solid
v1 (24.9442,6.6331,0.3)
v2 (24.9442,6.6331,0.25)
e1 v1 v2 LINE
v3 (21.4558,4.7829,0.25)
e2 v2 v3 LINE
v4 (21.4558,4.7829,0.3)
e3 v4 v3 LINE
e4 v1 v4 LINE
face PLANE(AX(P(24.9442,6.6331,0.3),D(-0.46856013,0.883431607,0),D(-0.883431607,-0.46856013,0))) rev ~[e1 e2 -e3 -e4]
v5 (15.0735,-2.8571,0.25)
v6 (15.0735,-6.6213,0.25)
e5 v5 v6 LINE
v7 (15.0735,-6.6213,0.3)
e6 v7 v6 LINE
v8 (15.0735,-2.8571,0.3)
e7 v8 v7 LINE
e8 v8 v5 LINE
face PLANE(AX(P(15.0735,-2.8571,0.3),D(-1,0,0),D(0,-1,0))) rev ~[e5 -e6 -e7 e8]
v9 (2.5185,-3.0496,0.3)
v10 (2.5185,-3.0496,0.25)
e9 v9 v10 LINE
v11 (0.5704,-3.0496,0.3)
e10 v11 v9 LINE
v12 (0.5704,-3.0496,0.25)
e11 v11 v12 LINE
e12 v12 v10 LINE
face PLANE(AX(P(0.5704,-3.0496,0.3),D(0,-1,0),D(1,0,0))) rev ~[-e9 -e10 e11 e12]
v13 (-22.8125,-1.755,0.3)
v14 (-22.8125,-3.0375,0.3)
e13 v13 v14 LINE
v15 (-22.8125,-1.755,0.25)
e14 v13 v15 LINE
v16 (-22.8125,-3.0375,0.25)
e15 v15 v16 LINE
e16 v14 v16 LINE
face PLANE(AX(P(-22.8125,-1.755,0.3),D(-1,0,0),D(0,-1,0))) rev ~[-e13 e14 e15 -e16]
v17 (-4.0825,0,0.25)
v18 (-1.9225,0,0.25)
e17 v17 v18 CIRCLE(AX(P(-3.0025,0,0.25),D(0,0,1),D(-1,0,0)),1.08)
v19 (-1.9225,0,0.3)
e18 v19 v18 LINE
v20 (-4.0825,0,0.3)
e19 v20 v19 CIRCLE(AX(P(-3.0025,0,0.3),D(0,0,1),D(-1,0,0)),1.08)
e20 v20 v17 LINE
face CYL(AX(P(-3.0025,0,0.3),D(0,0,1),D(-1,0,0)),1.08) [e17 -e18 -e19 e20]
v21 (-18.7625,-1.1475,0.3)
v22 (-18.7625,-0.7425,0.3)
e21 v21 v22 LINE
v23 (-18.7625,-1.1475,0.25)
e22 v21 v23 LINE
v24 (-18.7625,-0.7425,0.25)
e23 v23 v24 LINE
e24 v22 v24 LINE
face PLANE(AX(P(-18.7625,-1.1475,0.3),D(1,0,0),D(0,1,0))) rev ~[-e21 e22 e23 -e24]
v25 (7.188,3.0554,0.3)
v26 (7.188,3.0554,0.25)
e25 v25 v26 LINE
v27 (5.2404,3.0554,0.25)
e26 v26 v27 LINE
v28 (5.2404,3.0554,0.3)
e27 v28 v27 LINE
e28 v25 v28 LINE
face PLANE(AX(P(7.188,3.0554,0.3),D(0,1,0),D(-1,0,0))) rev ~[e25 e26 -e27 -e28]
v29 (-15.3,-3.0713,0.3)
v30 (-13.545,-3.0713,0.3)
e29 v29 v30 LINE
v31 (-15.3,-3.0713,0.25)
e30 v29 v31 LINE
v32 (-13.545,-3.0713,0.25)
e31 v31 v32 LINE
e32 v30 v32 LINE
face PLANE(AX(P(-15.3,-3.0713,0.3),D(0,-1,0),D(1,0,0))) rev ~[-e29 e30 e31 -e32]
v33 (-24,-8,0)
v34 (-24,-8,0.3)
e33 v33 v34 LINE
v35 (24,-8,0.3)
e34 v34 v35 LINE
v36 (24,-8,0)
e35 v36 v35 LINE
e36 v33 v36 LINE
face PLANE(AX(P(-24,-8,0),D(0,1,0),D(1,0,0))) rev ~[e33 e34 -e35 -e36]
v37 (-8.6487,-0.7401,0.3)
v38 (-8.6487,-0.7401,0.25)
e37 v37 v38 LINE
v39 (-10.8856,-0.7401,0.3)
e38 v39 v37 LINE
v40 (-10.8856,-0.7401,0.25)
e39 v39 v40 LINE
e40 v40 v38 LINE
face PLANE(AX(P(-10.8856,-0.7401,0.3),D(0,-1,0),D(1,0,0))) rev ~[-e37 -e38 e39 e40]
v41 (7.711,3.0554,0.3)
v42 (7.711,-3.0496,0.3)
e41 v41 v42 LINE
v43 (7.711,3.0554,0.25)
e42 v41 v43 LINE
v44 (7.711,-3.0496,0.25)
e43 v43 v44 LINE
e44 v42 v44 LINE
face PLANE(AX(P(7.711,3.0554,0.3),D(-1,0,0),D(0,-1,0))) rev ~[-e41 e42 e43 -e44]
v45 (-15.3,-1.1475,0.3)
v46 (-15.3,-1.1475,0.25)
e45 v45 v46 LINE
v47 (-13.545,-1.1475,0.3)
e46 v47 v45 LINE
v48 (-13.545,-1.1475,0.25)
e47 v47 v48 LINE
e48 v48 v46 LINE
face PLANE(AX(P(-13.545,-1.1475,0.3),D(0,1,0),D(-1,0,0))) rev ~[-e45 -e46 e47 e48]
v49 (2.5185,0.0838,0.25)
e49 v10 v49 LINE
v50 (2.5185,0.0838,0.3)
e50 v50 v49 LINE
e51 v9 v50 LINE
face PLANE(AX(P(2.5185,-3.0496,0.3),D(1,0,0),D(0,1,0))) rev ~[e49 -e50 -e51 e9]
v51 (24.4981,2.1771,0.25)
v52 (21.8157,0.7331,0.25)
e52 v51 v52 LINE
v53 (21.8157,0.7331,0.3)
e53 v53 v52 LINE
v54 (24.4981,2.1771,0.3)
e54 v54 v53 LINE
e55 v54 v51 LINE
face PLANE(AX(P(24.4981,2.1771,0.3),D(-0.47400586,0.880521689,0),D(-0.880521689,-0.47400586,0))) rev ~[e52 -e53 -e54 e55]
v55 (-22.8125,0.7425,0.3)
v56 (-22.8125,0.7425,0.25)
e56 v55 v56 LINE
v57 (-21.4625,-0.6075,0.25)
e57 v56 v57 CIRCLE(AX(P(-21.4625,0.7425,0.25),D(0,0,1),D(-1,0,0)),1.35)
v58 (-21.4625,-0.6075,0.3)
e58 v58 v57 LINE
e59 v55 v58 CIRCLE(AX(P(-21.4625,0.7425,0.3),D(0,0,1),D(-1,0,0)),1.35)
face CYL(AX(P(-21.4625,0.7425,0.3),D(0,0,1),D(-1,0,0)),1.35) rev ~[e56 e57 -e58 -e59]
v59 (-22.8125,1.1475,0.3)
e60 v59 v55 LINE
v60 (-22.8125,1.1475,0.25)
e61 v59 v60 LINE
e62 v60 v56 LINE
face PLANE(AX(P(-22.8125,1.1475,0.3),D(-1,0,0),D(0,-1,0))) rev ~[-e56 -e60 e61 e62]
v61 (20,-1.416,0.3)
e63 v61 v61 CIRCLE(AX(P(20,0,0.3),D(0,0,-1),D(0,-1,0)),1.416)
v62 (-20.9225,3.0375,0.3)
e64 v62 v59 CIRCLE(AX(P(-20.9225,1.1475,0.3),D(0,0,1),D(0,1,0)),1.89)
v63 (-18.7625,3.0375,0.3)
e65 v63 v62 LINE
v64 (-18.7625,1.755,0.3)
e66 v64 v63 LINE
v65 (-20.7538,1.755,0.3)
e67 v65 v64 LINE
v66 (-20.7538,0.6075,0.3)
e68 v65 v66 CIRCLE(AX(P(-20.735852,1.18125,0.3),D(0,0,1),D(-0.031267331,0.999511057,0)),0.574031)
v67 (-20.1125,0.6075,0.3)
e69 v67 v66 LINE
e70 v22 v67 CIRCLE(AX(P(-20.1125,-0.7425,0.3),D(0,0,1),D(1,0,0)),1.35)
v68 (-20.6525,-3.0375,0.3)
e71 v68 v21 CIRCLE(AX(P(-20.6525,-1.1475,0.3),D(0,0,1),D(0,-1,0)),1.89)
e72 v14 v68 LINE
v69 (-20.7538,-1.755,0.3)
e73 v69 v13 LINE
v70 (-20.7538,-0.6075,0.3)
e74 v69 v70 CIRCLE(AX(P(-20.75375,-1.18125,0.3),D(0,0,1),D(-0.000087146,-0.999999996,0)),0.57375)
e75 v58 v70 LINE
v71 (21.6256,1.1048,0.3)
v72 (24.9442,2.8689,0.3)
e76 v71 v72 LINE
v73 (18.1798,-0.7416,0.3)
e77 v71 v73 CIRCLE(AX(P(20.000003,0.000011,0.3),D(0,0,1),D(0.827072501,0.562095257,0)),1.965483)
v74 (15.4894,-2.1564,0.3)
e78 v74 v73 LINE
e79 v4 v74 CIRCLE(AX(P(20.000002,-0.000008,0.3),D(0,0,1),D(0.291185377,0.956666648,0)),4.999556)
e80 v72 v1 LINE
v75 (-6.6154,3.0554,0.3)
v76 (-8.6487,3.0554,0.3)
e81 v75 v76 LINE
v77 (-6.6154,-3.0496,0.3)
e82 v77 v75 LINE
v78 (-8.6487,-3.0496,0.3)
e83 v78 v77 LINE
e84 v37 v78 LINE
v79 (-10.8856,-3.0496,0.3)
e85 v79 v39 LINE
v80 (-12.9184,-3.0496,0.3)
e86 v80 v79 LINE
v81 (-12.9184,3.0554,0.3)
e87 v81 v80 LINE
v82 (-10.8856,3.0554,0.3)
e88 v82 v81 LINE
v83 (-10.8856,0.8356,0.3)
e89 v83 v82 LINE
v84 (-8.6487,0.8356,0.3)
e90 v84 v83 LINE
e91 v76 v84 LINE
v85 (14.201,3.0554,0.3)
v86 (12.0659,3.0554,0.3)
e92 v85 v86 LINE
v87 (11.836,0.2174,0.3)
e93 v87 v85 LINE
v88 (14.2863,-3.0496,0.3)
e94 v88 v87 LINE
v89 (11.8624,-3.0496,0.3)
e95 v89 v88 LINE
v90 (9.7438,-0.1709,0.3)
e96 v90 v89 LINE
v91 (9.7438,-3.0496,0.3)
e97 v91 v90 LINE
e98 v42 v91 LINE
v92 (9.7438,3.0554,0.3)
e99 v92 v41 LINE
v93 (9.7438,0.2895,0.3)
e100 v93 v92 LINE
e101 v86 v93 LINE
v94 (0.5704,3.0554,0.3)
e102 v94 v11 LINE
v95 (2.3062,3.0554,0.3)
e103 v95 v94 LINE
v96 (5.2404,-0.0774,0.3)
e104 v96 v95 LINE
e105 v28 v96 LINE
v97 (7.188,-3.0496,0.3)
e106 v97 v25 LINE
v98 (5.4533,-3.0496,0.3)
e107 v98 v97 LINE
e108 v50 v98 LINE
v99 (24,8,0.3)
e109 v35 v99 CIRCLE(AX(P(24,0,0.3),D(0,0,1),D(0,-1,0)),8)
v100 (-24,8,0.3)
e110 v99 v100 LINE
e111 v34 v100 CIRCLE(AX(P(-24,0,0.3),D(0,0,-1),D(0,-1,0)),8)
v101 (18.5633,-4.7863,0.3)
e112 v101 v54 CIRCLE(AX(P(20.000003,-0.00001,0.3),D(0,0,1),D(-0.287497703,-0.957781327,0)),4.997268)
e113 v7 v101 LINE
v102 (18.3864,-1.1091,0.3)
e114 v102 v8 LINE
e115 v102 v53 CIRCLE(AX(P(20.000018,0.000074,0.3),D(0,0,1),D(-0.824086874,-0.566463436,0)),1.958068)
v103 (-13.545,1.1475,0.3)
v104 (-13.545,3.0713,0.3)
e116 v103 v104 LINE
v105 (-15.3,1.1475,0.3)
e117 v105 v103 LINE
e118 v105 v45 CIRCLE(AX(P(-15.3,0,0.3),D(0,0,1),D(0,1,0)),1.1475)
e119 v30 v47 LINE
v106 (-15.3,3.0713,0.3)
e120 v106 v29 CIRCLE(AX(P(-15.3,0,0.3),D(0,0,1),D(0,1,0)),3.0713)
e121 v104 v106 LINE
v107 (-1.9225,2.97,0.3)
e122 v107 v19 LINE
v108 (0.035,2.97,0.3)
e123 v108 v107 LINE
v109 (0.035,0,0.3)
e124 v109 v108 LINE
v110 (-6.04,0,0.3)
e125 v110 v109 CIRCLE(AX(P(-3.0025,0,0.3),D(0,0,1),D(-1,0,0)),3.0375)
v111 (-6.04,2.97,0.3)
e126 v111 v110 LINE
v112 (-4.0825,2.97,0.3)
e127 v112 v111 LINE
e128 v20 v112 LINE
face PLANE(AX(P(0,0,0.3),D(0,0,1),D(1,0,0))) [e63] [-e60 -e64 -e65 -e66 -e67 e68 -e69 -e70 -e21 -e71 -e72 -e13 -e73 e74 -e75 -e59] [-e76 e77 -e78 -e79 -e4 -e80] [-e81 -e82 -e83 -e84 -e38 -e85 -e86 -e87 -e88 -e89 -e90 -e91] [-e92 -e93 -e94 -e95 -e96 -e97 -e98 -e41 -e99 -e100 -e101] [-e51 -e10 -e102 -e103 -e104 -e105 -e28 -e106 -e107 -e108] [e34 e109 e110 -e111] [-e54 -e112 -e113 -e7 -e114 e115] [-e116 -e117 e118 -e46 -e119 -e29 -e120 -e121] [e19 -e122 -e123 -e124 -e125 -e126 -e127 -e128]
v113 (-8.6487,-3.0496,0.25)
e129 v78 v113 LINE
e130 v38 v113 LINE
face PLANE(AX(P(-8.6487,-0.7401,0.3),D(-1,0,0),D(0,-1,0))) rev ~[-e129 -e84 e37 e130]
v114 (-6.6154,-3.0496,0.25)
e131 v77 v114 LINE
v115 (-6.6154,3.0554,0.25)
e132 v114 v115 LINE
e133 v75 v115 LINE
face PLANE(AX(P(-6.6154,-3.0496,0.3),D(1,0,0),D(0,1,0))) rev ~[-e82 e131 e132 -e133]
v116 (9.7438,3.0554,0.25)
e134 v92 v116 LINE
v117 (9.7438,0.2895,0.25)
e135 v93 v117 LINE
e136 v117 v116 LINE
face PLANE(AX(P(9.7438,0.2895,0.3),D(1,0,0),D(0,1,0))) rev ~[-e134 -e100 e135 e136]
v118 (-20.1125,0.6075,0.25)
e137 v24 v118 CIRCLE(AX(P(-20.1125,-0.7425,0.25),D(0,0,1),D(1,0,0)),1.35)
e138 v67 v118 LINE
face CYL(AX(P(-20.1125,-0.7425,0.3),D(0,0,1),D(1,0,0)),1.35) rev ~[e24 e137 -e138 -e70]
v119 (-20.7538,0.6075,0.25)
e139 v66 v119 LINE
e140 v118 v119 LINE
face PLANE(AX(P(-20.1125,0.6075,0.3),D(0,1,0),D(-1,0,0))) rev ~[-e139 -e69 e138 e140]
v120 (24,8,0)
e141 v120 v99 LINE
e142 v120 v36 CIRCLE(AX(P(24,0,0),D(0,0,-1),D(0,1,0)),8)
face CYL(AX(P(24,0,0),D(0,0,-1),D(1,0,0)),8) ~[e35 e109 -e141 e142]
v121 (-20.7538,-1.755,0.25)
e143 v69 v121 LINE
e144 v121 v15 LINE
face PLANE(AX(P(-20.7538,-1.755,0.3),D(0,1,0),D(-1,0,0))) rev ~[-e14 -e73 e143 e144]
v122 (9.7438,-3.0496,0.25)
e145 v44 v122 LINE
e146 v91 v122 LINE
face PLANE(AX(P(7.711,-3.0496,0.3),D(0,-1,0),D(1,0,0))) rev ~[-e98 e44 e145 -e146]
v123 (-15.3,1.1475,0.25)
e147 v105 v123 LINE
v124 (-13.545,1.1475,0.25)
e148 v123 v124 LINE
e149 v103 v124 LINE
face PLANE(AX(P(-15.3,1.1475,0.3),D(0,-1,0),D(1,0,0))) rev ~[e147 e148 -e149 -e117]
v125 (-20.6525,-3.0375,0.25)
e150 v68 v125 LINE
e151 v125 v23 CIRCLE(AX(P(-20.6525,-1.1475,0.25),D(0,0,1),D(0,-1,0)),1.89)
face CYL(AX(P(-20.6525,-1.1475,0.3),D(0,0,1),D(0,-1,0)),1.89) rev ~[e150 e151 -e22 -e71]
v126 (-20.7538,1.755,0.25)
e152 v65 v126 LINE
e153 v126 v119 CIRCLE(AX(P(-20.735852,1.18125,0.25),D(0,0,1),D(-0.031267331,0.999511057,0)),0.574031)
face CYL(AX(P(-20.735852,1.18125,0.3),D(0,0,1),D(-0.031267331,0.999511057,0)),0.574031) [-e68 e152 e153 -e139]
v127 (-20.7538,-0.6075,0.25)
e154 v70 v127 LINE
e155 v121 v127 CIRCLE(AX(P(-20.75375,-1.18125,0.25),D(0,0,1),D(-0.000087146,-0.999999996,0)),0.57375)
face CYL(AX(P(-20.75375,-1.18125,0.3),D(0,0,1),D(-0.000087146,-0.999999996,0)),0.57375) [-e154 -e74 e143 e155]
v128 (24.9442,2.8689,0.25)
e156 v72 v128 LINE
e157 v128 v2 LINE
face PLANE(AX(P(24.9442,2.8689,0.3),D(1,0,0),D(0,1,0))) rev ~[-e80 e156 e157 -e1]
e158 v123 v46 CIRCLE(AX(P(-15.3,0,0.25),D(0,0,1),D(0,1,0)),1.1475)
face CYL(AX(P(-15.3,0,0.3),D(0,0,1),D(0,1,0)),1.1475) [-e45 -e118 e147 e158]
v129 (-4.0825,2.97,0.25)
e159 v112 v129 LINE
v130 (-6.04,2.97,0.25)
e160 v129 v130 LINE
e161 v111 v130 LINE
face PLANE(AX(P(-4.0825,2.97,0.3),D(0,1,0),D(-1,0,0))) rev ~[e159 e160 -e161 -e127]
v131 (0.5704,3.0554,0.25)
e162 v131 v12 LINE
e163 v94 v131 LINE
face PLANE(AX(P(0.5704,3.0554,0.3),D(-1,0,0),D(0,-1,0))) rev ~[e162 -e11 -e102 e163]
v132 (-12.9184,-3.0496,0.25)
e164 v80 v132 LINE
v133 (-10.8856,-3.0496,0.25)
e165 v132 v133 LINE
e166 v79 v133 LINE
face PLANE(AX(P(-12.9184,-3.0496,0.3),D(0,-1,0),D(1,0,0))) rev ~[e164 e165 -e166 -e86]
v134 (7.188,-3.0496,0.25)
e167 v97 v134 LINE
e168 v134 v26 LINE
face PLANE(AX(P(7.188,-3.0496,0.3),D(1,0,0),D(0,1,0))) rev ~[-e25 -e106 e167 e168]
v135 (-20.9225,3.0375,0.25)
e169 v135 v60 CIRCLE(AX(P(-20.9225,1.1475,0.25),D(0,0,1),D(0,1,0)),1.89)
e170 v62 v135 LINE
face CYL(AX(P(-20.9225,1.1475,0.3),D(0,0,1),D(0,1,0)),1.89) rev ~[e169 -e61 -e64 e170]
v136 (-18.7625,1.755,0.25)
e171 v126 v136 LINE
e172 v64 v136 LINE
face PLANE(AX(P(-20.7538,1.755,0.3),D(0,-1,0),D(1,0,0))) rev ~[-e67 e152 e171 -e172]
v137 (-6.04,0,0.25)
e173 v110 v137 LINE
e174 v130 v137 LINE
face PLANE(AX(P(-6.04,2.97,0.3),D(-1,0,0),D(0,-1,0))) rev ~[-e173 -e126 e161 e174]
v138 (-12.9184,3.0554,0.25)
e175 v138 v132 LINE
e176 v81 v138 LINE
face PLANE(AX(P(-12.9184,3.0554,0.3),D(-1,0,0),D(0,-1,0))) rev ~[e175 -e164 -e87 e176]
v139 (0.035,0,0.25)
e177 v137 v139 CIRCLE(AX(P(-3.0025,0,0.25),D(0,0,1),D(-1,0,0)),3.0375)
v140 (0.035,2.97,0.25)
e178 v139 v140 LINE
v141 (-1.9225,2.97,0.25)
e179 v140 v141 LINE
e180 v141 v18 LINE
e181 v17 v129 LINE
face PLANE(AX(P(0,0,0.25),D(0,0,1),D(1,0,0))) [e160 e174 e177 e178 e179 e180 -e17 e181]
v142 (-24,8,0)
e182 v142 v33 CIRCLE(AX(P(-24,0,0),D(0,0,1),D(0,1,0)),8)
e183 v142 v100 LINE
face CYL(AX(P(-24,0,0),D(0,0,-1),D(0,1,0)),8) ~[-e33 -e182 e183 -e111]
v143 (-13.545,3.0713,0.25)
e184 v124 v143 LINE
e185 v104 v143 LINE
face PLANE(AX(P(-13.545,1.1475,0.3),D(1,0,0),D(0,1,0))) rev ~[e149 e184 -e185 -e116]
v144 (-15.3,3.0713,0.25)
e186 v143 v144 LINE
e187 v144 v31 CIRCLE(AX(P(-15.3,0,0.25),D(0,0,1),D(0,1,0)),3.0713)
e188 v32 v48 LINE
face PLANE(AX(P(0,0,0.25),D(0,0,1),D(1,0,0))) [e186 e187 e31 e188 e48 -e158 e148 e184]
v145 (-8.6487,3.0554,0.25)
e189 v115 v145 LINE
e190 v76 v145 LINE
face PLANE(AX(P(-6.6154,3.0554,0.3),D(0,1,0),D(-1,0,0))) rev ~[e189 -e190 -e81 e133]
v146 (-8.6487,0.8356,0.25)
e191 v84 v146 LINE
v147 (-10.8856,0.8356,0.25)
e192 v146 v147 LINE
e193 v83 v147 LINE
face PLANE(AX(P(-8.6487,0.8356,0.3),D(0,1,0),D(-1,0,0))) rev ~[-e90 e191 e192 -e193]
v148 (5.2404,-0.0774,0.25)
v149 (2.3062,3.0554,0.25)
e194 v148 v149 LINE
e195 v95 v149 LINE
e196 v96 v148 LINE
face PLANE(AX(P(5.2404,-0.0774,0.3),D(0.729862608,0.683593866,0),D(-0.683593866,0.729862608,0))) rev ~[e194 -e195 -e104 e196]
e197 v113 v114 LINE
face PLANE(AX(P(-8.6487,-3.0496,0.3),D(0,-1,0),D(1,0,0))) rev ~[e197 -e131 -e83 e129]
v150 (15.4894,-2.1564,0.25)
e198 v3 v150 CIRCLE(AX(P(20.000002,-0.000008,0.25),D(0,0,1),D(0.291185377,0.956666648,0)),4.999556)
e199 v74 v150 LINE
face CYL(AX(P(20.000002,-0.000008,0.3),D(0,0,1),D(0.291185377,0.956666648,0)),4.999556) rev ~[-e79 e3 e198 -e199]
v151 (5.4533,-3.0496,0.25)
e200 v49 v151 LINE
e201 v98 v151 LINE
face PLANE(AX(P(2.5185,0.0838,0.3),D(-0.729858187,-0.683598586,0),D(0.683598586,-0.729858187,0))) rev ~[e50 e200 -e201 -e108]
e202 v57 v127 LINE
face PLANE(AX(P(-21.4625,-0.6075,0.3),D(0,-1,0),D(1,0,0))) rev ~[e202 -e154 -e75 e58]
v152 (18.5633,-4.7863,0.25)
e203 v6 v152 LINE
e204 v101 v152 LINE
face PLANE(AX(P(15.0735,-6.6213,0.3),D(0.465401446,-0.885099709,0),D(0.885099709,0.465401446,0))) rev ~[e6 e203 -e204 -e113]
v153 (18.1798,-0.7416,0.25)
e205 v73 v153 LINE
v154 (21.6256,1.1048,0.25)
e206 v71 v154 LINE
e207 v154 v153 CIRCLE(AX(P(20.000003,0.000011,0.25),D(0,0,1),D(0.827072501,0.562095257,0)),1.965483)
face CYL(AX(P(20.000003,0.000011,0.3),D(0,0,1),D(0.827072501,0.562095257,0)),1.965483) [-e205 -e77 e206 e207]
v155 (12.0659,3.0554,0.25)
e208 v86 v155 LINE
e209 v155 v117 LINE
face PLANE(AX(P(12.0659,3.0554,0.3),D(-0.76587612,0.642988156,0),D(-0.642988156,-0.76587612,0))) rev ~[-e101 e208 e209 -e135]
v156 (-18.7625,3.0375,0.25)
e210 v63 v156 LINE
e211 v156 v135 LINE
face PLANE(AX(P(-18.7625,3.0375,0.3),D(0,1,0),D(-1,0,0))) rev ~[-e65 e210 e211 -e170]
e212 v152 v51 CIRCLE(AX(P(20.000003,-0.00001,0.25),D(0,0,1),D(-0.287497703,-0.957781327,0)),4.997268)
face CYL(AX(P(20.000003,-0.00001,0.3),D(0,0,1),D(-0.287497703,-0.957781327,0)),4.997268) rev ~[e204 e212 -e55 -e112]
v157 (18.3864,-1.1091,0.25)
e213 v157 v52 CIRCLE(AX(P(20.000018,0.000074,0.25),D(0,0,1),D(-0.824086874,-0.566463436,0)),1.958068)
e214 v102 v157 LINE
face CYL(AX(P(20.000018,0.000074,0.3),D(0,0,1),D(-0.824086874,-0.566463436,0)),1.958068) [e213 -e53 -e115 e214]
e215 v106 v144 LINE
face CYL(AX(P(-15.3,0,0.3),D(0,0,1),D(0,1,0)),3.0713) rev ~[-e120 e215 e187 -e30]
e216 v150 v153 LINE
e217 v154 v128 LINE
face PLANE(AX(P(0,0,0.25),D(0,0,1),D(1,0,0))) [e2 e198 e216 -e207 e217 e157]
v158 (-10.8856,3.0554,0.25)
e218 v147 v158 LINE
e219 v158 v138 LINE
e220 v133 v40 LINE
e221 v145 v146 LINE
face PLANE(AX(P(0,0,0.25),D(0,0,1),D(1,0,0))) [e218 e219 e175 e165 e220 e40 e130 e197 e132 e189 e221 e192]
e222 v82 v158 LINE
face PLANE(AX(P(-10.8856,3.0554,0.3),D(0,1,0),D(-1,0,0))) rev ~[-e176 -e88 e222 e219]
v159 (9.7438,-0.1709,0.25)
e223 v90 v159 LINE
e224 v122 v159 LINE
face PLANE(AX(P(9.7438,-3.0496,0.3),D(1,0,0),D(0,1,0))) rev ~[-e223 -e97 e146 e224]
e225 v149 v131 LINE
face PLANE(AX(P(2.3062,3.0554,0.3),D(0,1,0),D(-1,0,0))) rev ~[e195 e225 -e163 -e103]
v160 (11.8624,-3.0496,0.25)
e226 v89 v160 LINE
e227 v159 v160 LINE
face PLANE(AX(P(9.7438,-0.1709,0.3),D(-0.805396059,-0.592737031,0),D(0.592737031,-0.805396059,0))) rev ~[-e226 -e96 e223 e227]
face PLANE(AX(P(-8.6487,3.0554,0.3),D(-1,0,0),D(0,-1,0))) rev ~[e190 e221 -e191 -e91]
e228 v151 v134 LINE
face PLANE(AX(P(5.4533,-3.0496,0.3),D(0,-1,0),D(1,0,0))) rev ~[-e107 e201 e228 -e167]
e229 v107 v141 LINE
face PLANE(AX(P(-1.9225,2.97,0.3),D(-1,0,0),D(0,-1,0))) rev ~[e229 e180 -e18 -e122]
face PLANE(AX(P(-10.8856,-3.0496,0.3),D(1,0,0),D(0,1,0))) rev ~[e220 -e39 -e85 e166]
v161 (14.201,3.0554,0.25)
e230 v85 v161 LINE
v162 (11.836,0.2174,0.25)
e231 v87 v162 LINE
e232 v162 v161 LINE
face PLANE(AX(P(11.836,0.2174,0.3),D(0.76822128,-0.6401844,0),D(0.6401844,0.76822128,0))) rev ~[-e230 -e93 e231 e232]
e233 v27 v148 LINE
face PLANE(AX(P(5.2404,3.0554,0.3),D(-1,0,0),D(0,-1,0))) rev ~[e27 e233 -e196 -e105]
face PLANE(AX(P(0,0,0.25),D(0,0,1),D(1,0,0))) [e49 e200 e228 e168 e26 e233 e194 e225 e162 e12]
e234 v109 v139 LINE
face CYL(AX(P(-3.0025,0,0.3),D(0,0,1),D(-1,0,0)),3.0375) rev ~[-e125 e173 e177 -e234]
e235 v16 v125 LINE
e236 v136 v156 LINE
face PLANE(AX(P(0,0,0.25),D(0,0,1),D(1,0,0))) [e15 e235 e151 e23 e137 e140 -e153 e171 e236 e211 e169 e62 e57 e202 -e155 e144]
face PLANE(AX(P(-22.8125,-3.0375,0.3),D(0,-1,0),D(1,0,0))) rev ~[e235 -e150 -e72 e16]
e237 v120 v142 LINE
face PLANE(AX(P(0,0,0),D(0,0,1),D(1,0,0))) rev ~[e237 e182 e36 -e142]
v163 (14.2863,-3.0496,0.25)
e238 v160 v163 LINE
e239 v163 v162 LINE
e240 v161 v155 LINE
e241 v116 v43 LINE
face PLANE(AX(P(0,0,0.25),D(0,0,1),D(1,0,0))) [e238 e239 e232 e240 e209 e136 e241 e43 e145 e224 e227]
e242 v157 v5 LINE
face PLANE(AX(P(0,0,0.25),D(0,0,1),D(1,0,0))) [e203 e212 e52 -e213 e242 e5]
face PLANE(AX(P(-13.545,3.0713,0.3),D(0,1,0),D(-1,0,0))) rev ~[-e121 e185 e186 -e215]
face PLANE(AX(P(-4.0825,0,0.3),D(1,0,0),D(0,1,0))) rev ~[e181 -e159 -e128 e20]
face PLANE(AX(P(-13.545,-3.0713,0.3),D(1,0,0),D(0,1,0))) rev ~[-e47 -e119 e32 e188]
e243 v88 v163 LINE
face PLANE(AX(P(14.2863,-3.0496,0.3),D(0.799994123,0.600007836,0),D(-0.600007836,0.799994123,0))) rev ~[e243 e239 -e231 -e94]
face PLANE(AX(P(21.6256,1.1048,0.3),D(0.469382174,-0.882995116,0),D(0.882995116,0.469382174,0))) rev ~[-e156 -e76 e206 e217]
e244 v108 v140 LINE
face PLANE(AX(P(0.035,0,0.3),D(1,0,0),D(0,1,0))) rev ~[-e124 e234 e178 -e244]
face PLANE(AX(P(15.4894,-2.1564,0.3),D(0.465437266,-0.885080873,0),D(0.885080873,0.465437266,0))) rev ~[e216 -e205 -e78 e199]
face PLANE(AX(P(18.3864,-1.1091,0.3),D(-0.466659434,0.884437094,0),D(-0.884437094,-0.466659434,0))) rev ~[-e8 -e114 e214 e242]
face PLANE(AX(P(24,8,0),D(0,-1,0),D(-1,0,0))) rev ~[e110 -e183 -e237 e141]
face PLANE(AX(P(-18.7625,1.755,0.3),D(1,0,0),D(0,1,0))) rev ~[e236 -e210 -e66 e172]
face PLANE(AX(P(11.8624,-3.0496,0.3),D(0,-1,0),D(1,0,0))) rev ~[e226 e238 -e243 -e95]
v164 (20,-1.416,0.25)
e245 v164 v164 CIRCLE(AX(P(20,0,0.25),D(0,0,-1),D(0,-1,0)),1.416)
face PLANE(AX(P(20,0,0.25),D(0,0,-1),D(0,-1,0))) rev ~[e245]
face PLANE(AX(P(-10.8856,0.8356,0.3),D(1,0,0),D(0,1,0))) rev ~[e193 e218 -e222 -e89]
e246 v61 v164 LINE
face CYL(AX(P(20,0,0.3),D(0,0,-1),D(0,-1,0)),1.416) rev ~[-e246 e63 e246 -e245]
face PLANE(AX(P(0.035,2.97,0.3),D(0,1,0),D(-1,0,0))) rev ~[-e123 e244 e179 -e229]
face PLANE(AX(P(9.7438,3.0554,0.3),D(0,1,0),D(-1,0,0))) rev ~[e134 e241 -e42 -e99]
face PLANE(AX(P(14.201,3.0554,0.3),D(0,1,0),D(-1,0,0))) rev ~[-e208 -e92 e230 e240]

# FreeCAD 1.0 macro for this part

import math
import FreeCAD as App
import Part
import Sketcher

V = App.Vector
Q = App.Units.Quantity

doc = App.newDocument("Part")
body = doc.addObject("PartDesign::Body", "Body")

# Sketch on XY plane
sketch1 = body.newObject("Sketcher::SketchObject", "Sketch")
sketch1.AttachmentSupport = (doc.getObject("XY_Plane"), [""])
sketch1.MapMode = "FlatFace"
sketch1.addGeometry([
    Part.ArcOfCircle(Part.Circle(V(-24, 0, 0), V(0, 0, 1), 8), math.radians(90), math.radians(270)),
    Part.LineSegment(V(-24, -8, 0), V(24, -8, 0)),
    Part.ArcOfCircle(Part.Circle(V(24, 0, 0), V(0, 0, 1), 8), math.radians(-90), math.radians(90)),
    Part.LineSegment(V(24, 8, 0), V(-24, 8, 0)),
], False)
sketch1.addConstraint([
    Sketcher.Constraint("Tangent", 0, 2, 1, 1),
    Sketcher.Constraint("Tangent", 1, 2, 2, 1),
    Sketcher.Constraint("Tangent", 2, 2, 3, 1),
    Sketcher.Constraint("Tangent", 3, 2, 0, 1),
    Sketcher.Constraint("Horizontal", 1),
    Sketcher.Constraint("Horizontal", 3),
    Sketcher.Constraint("Symmetric", 0, 3, 2, 3, -1, 1),
    Sketcher.Constraint("Radius", 0, Q("8 mm")),
    Sketcher.Constraint("DistanceX", 1, 1, 1, 2, Q("48 mm")),
])
pad1 = body.newObject("PartDesign::Pad", "Pad")
pad1.Profile = sketch1
pad1.Length = 0.3

# Sketch on XY plane
sketch2 = body.newObject("Sketcher::SketchObject", "Sketch001")
sketch2.AttachmentSupport = (doc.getObject("XY_Plane"), [""])
sketch2.MapMode = "FlatFace"
sketch2.AttachmentOffset = App.Placement(V(0, 0, 0.3), App.Rotation())
sketch2.addGeometry([
    Part.LineSegment(V(-10.9, 3.1, 0), V(-12.9, 3.1, 0)),  # 0
    Part.LineSegment(V(-12.9, 3.1, 0), V(-12.9, -3, 0)),  # 1
    Part.LineSegment(V(-12.9, -3, 0), V(-10.9, -3, 0)),  # 2
    Part.LineSegment(V(-10.9, -3, 0), V(-10.9, -0.7, 0)),  # 3
    Part.LineSegment(V(-10.9, -0.7, 0), V(-8.6, -0.7, 0)),  # 4
    Part.LineSegment(V(-8.6, -0.7, 0), V(-8.6, -3, 0)),  # 5
    Part.LineSegment(V(-8.6, -3, 0), V(-6.6, -3, 0)),  # 6
    Part.LineSegment(V(-6.6, -3, 0), V(-6.6, 3.1, 0)),  # 7
    Part.LineSegment(V(-6.6, 3.1, 0), V(-8.6, 3.1, 0)),  # 8
    Part.LineSegment(V(-8.6, 3.1, 0), V(-8.6, 0.8, 0)),  # 9
    Part.LineSegment(V(-8.6, 0.8, 0), V(-10.9, 0.8, 0)),  # 10
    Part.LineSegment(V(-10.9, 0.8, 0), V(-10.9, 3.1, 0)),  # 11
], False)
sketch2.addConstraint([
    Sketcher.Constraint("Coincident", 0, 2, 1, 1),
    Sketcher.Constraint("Coincident", 1, 2, 2, 1),
    Sketcher.Constraint("Coincident", 2, 2, 3, 1),
    Sketcher.Constraint("Coincident", 3, 2, 4, 1),
    Sketcher.Constraint("Coincident", 4, 2, 5, 1),
    Sketcher.Constraint("Coincident", 5, 2, 6, 1),
    Sketcher.Constraint("Coincident", 6, 2, 7, 1),
    Sketcher.Constraint("Coincident", 7, 2, 8, 1),
    Sketcher.Constraint("Coincident", 8, 2, 9, 1),
    Sketcher.Constraint("Coincident", 9, 2, 10, 1),
    Sketcher.Constraint("Coincident", 10, 2, 11, 1),
    Sketcher.Constraint("Coincident", 11, 2, 0, 1),
    Sketcher.Constraint("Horizontal", 0),
    Sketcher.Constraint("Vertical", 1),
    Sketcher.Constraint("Horizontal", 2),
    Sketcher.Constraint("Vertical", 3),
    Sketcher.Constraint("Horizontal", 4),
    Sketcher.Constraint("Vertical", 5),
    Sketcher.Constraint("Horizontal", 6),
    Sketcher.Constraint("Vertical", 7),
    Sketcher.Constraint("Horizontal", 8),
    Sketcher.Constraint("Vertical", 9),
    Sketcher.Constraint("Horizontal", 10),
    Sketcher.Constraint("Vertical", 11),
    Sketcher.Constraint("Horizontal", 2, 2, 5, 2),
    Sketcher.Constraint("Horizontal", 0, 2, 7, 2),
    Sketcher.Constraint("Vertical", 5, 2, 8, 2),
    Sketcher.Constraint("Vertical", 3, 2, 10, 2),
    Sketcher.Constraint("DistanceX", 4, 1, 4, 2, Q("2.237 mm")),
    Sketcher.Constraint("DistanceY", 1, 2, 1, 1, Q("6.105 mm")),
    Sketcher.Constraint("DistanceY", 3, 2, -1, 1, Q("0.74 mm")),
    Sketcher.Constraint("DistanceX", 0, 2, 0, 1, Q("2.0328 mm")),
    Sketcher.Constraint("DistanceX", 6, 1, 6, 2, Q("2.0333 mm")),
    Sketcher.Constraint("DistanceY", 3, 1, 3, 2, Q("2.3095 mm")),
    Sketcher.Constraint("DistanceY", 9, 2, 9, 1, Q("2.2198 mm")),
    Sketcher.Constraint("DistanceX", 0, 2, -1, 1, Q("12.9184 mm")),
])
pocket1 = body.newObject("PartDesign::Pocket", "Pocket")
pocket1.Profile = sketch2
pocket1.Length = 0.05

# Sketch on XY plane
sketch3 = body.newObject("Sketcher::SketchObject", "Sketch002")
sketch3.AttachmentSupport = (doc.getObject("XY_Plane"), [""])
sketch3.MapMode = "FlatFace"
sketch3.AttachmentOffset = App.Placement(V(0, 0, 0.3), App.Rotation())
sketch3.addGeometry([
    Part.LineSegment(V(2.3, 3.1, 0), V(0.6, 3.1, 0)),  # 0
    Part.LineSegment(V(0.6, 3.1, 0), V(0.6, -3, 0)),  # 1
    Part.LineSegment(V(0.6, -3, 0), V(2.5, -3, 0)),  # 2
    Part.LineSegment(V(2.5, -3, 0), V(2.5, 0.1, 0)),  # 3
    Part.LineSegment(V(2.5, 0.1, 0), V(5.5, -3, 0)),  # 4
    Part.LineSegment(V(5.5, -3, 0), V(7.2, -3, 0)),  # 5
    Part.LineSegment(V(7.2, -3, 0), V(7.2, 3.1, 0)),  # 6
    Part.LineSegment(V(7.2, 3.1, 0), V(5.2, 3.1, 0)),  # 7
    Part.LineSegment(V(5.2, 3.1, 0), V(5.2, -0.1, 0)),  # 8
    Part.LineSegment(V(5.2, -0.1, 0), V(2.3, 3.1, 0)),  # 9
], False)
sketch3.addConstraint([
    Sketcher.Constraint("Coincident", 0, 2, 1, 1),
    Sketcher.Constraint("Coincident", 1, 2, 2, 1),
    Sketcher.Constraint("Coincident", 2, 2, 3, 1),
    Sketcher.Constraint("Coincident", 3, 2, 4, 1),
    Sketcher.Constraint("Coincident", 4, 2, 5, 1),
    Sketcher.Constraint("Coincident", 5, 2, 6, 1),
    Sketcher.Constraint("Coincident", 6, 2, 7, 1),
    Sketcher.Constraint("Coincident", 7, 2, 8, 1),
    Sketcher.Constraint("Coincident", 8, 2, 9, 1),
    Sketcher.Constraint("Coincident", 9, 2, 0, 1),
    Sketcher.Constraint("Horizontal", 0),
    Sketcher.Constraint("Vertical", 1),
    Sketcher.Constraint("Horizontal", 2),
    Sketcher.Constraint("Vertical", 3),
    Sketcher.Constraint("Horizontal", 5),
    Sketcher.Constraint("Vertical", 6),
    Sketcher.Constraint("Horizontal", 7),
    Sketcher.Constraint("Vertical", 8),
    Sketcher.Constraint("Parallel", 4, 9),
    Sketcher.Constraint("Horizontal", 2, 2, 4, 2),
    Sketcher.Constraint("Horizontal", 0, 2, 6, 2),
    Sketcher.Constraint("DistanceX", 2, 1, 2, 2, Q("1.948 mm")),
    Sketcher.Constraint("DistanceY", 1, 2, 1, 1, Q("6.105 mm")),
    Sketcher.Constraint("DistanceX", 0, 2, 7, 2, Q("4.67 mm")),
    Sketcher.Constraint("DistanceX", 0, 2, 0, 1, Q("1.7358 mm")),
    Sketcher.Constraint("DistanceX", 5, 1, 5, 2, Q("1.7347 mm")),
    Sketcher.Constraint("DistanceX", 7, 2, 7, 1, Q("1.9476 mm")),
    Sketcher.Constraint("DistanceY", 3, 1, 3, 2, Q("3.1334 mm")),
    Sketcher.Constraint("DistanceX", -1, 1, 5, 2, Q("7.188 mm")),
    Sketcher.Constraint("DistanceY", -1, 1, 0, 2, Q("3.0554 mm")),
])
pocket2 = body.newObject("PartDesign::Pocket", "Pocket001")
pocket2.Profile = sketch3
pocket2.Length = 0.05

# Sketch on XY plane
sketch4 = body.newObject("Sketcher::SketchObject", "Sketch003")
sketch4.AttachmentSupport = (doc.getObject("XY_Plane"), [""])
sketch4.MapMode = "FlatFace"
sketch4.AttachmentOffset = App.Placement(V(0, 0, 0.3), App.Rotation())
sketch4.addGeometry([
    Part.LineSegment(V(9.7, 3.1, 0), V(7.7, 3.1, 0)),  # 0
    Part.LineSegment(V(7.7, 3.1, 0), V(7.7, -3, 0)),  # 1
    Part.LineSegment(V(7.7, -3, 0), V(9.7, -3, 0)),  # 2
    Part.LineSegment(V(9.7, -3, 0), V(9.7, -0.2, 0)),  # 3
    Part.LineSegment(V(9.7, -0.2, 0), V(11.9, -3, 0)),  # 4
    Part.LineSegment(V(11.9, -3, 0), V(14.3, -3, 0)),  # 5
    Part.LineSegment(V(14.3, -3, 0), V(11.8, 0.2, 0)),  # 6
    Part.LineSegment(V(11.8, 0.2, 0), V(14.2, 3.1, 0)),  # 7
    Part.LineSegment(V(14.2, 3.1, 0), V(12.1, 3.1, 0)),  # 8
    Part.LineSegment(V(12.1, 3.1, 0), V(9.7, 0.3, 0)),  # 9
    Part.LineSegment(V(9.7, 0.3, 0), V(9.7, 3.1, 0)),  # 10
], False)
sketch4.addConstraint([
    Sketcher.Constraint("Coincident", 0, 2, 1, 1),
    Sketcher.Constraint("Coincident", 1, 2, 2, 1),
    Sketcher.Constraint("Coincident", 2, 2, 3, 1),
    Sketcher.Constraint("Coincident", 3, 2, 4, 1),
    Sketcher.Constraint("Coincident", 4, 2, 5, 1),
    Sketcher.Constraint("Coincident", 5, 2, 6, 1),
    Sketcher.Constraint("Coincident", 6, 2, 7, 1),
    Sketcher.Constraint("Coincident", 7, 2, 8, 1),
    Sketcher.Constraint("Coincident", 8, 2, 9, 1),
    Sketcher.Constraint("Coincident", 9, 2, 10, 1),
    Sketcher.Constraint("Coincident", 10, 2, 0, 1),
    Sketcher.Constraint("Horizontal", 0),
    Sketcher.Constraint("Vertical", 1),
    Sketcher.Constraint("Horizontal", 2),
    Sketcher.Constraint("Vertical", 3),
    Sketcher.Constraint("Horizontal", 5),
    Sketcher.Constraint("Horizontal", 8),
    Sketcher.Constraint("Vertical", 10),
    Sketcher.Constraint("Horizontal", 2, 2, 4, 2),
    Sketcher.Constraint("Horizontal", 0, 2, 7, 2),
    Sketcher.Constraint("Vertical", 3, 2, 9, 2),
    Sketcher.Constraint("Angle", 6, Q("126.8705 deg")),
    Sketcher.Constraint("DistanceX", 5, 1, 5, 2, Q("2.424 mm")),
    Sketcher.Constraint("DistanceX", 8, 2, 8, 1, Q("2.135 mm")),
    Sketcher.Constraint("DistanceY", 1, 2, 1, 1, Q("6.105 mm")),
    Sketcher.Constraint("DistanceY", 10, 1, 10, 2, Q("2.766 mm")),
    Sketcher.Constraint("DistanceX", 0, 2, 7, 2, Q("6.49 mm")),
    Sketcher.Constraint("DistanceX", 6, 2, 8, 2, Q("0.23 mm")),
    Sketcher.Constraint("DistanceX", 0, 2, 0, 1, Q("2.0328 mm")),
    Sketcher.Constraint("DistanceY", 3, 1, 3, 2, Q("2.8787 mm")),
    Sketcher.Constraint("DistanceX", -1, 1, 0, 2, Q("7.711 mm")),
    Sketcher.Constraint("DistanceY", 3, 2, -1, 1, Q("0.171 mm")),
    Sketcher.Constraint("DistanceY", 4, 2, 6, 2, Q("3.267 mm")),
])
pocket3 = body.newObject("PartDesign::Pocket", "Pocket002")
pocket3.Profile = sketch4
pocket3.Length = 0.05

# Sketch on XY plane
sketch5 = body.newObject("Sketcher::SketchObject", "Sketch004")
sketch5.AttachmentSupport = (doc.getObject("XY_Plane"), [""])
sketch5.MapMode = "FlatFace"
sketch5.AttachmentOffset = App.Placement(V(0, 0, 0.3), App.Rotation())
sketch5.addGeometry([
    Part.LineSegment(V(-22.8125, 1.1475, 0), V(-22.8125, 0.7425, 0)),  # 0
    Part.ArcOfCircle(Part.Circle(V(-21.4625, 0.7425, 0), V(0, 0, 1), 1.35), math.radians(180), math.radians(270)),  # 1
    Part.LineSegment(V(-21.4625, -0.6075, 0), V(-20.7538, -0.6075, 0)),  # 2
    Part.ArcOfCircle(Part.Circle(V(-20.7538, -1.1812, 0), V(0, 0, 1), 0.5738), math.radians(-90), math.radians(90)),  # 3
    Part.LineSegment(V(-20.7538, -1.755, 0), V(-22.8125, -1.755, 0)),  # 4
    Part.LineSegment(V(-22.8125, -1.755, 0), V(-22.8125, -3.0375, 0)),  # 5
    Part.LineSegment(V(-22.8125, -3.0375, 0), V(-20.6525, -3.0375, 0)),  # 6
    Part.ArcOfCircle(Part.Circle(V(-20.6525, -1.1475, 0), V(0, 0, 1), 1.89), math.radians(-90), math.radians(0)),  # 7
    Part.LineSegment(V(-18.7625, -1.1475, 0), V(-18.7625, -0.7425, 0)),  # 8
    Part.ArcOfCircle(Part.Circle(V(-20.1125, -0.7425, 0), V(0, 0, 1), 1.35), math.radians(0), math.radians(90)),  # 9
    Part.LineSegment(V(-20.1125, 0.6075, 0), V(-20.7538, 0.6075, 0)),  # 10
    Part.ArcOfCircle(Part.Circle(V(-20.7358, 1.1812, 0), V(0, 0, 1), 0.574082), math.radians(91.796769), math.radians(268.202918)),  # 11
    Part.LineSegment(V(-20.7538, 1.755, 0), V(-18.7625, 1.755, 0)),  # 12
    Part.LineSegment(V(-18.7625, 1.755, 0), V(-18.7625, 3.0375, 0)),  # 13
    Part.LineSegment(V(-18.7625, 3.0375, 0), V(-20.9225, 3.0375, 0)),  # 14
    Part.ArcOfCircle(Part.Circle(V(-20.9225, 1.1475, 0), V(0, 0, 1), 1.89), math.radians(90), math.radians(180)),  # 15
], False)
sketch5.addConstraint([
    Sketcher.Constraint("Coincident", 0, 2, 1, 1),
    Sketcher.Constraint("Coincident", 1, 2, 2, 1),
    Sketcher.Constraint("Coincident", 2, 2, 3, 2),
    Sketcher.Constraint("Coincident", 3, 1, 4, 1),
    Sketcher.Constraint("Coincident", 4, 2, 5, 1),
    Sketcher.Constraint("Coincident", 5, 2, 6, 1),
    Sketcher.Constraint("Coincident", 6, 2, 7, 1),
    Sketcher.Constraint("Coincident", 7, 2, 8, 1),
    Sketcher.Constraint("Coincident", 8, 2, 9, 1),
    Sketcher.Constraint("Coincident", 9, 2, 10, 1),
    Sketcher.Constraint("Coincident", 10, 2, 11, 2),
    Sketcher.Constraint("Coincident", 11, 1, 12, 1),
    Sketcher.Constraint("Coincident", 12, 2, 13, 1),
    Sketcher.Constraint("Coincident", 13, 2, 14, 1),
    Sketcher.Constraint("Coincident", 14, 2, 15, 1),
    Sketcher.Constraint("Coincident", 15, 2, 0, 1),
    Sketcher.Constraint("Vertical", 0),
    Sketcher.Constraint("Horizontal", 2),
    Sketcher.Constraint("Horizontal", 4),
    Sketcher.Constraint("Vertical", 5),
    Sketcher.Constraint("Horizontal", 6),
    Sketcher.Constraint("Vertical", 8),
    Sketcher.Constraint("Horizontal", 10),
    Sketcher.Constraint("Horizontal", 12),
    Sketcher.Constraint("Vertical", 13),
    Sketcher.Constraint("Horizontal", 14),
    Sketcher.Constraint("Radius", 1, Q("1.35 mm")),
    Sketcher.Constraint("Radius", 7, Q("1.89 mm")),
    Sketcher.Constraint("Radius", 9, Q("1.35 mm")),
    Sketcher.Constraint("Radius", 15, Q("1.89 mm")),
    Sketcher.Constraint("Radius", 11, Q("0.574 mm")),
    Sketcher.Constraint("DistanceX", 6, 1, 6, 2, Q("2.16 mm")),
    Sketcher.Constraint("DistanceX", 14, 2, 14, 1, Q("2.16 mm")),
    Sketcher.Constraint("Radius", 3, Q("0.5738 mm")),
    Sketcher.Constraint("DistanceY", 0, 2, 0, 1, Q("0.405 mm")),
    Sketcher.Constraint("DistanceY", 8, 1, 8, 2, Q("0.405 mm")),
    Sketcher.Constraint("DistanceX", 1, 3, 7, 3, Q("0.81 mm")),
    Sketcher.Constraint("DistanceY", 7, 3, 1, 3, Q("1.89 mm")),
    Sketcher.Constraint("DistanceY", 9, 3, 15, 3, Q("1.89 mm")),
    Sketcher.Constraint("DistanceY", 7, 3, 0, 2, Q("1.89 mm")),
    Sketcher.Constraint("DistanceX", 1, 2, 7, 3, Q("0.81 mm")),
    Sketcher.Constraint("DistanceX", 4, 2, 1, 2, Q("1.35 mm")),
    Sketcher.Constraint("DistanceY", 7, 2, 2, 2, Q("0.54 mm")),
    Sketcher.Constraint("DistanceX", 15, 3, 9, 2, Q("0.81 mm")),
    Sketcher.Constraint("DistanceX", 9, 2, 12, 2, Q("1.35 mm")),
    Sketcher.Constraint("DistanceY", 10, 2, 15, 2, Q("0.54 mm")),
    Sketcher.Constraint("DistanceX", 2, 1, 2, 2, Q("0.7087 mm")),
    Sketcher.Constraint("DistanceX", 4, 2, 4, 1, Q("2.0587 mm")),
    Sketcher.Constraint("DistanceX", 10, 2, 10, 1, Q("0.6413 mm")),
    Sketcher.Constraint("DistanceX", 12, 1, 12, 2, Q("1.9913 mm")),
    Sketcher.Constraint("DistanceY", 13, 1, 13, 2, Q("1.2825 mm")),
    Sketcher.Constraint("DistanceY", 3, 1, -1, 1, Q("1.755 mm")),
    Sketcher.Constraint("DistanceX", 3, 3, 11, 3, Q("0.018 mm")),
    Sketcher.Constraint("DistanceX", 1, 3, -1, 1, Q("21.4625 mm")),
])
pocket4 = body.newObject("PartDesign::Pocket", "Pocket003")
pocket4.Profile = sketch5
pocket4.Length = 0.05

# Sketch on XY plane
sketch6 = body.newObject("Sketcher::SketchObject", "Sketch005")
sketch6.AttachmentSupport = (doc.getObject("XY_Plane"), [""])
sketch6.MapMode = "FlatFace"
sketch6.AttachmentOffset = App.Placement(V(0, 0, 0.3), App.Rotation())
sketch6.addGeometry([
    Part.LineSegment(V(-13.5, 3.1, 0), V(-15.3, 3.1, 0)),  # 0
    Part.ArcOfCircle(Part.Circle(V(-15.3, 0, 0), V(0, 0, 1), 3.1), math.radians(90), math.radians(270)),  # 1
    Part.LineSegment(V(-15.3, -3.1, 0), V(-13.5, -3.1, 0)),  # 2
    Part.LineSegment(V(-13.5, -3.1, 0), V(-13.5, -1.1, 0)),  # 3
    Part.LineSegment(V(-13.5, -1.1, 0), V(-15.3, -1.1, 0)),  # 4
    Part.ArcOfCircle(Part.Circle(V(-15.3, 0, 0), V(0, 0, 1), 1.1), math.radians(90), math.radians(270)),  # 5
    Part.LineSegment(V(-15.3, 1.1, 0), V(-13.5, 1.1, 0)),  # 6
    Part.LineSegment(V(-13.5, 1.1, 0), V(-13.5, 3.1, 0)),  # 7
], False)
sketch6.addConstraint([
    Sketcher.Constraint("Tangent", 0, 2, 1, 1),
    Sketcher.Constraint("Tangent", 1, 2, 2, 1),
    Sketcher.Constraint("Coincident", 2, 2, 3, 1),
    Sketcher.Constraint("Coincident", 3, 2, 4, 1),
    Sketcher.Constraint("Tangent", 4, 2, 5, 2),
    Sketcher.Constraint("Tangent", 5, 1, 6, 1),
    Sketcher.Constraint("Coincident", 6, 2, 7, 1),
    Sketcher.Constraint("Coincident", 7, 2, 0, 1),
    Sketcher.Constraint("Horizontal", 0),
    Sketcher.Constraint("Horizontal", 2),
    Sketcher.Constraint("Vertical", 3),
    Sketcher.Constraint("Horizontal", 4),
    Sketcher.Constraint("Horizontal", 6),
    Sketcher.Constraint("Vertical", 7),
    Sketcher.Constraint("Coincident", 5, 3, 1, 3),
    Sketcher.Constraint("Symmetric", 3, 2, 6, 2, -1),
    Sketcher.Constraint("DistanceX", 1, 3, -1, 1, Q("15.3 mm")),
    Sketcher.Constraint("Radius", 1, Q("3.0713 mm")),
    Sketcher.Constraint("Radius", 5, Q("1.1475 mm")),
    Sketcher.Constraint("DistanceX", 0, 2, 0, 1, Q("1.755 mm")),
])
pocket5 = body.newObject("PartDesign::Pocket", "Pocket004")
pocket5.Profile = sketch6
pocket5.Length = 0.05

# Sketch on XY plane
sketch7 = body.newObject("Sketcher::SketchObject", "Sketch006")
sketch7.AttachmentSupport = (doc.getObject("XY_Plane"), [""])
sketch7.MapMode = "FlatFace"
sketch7.AttachmentOffset = App.Placement(V(0, 0, 0.3), App.Rotation())
sketch7.addGeometry([
    Part.LineSegment(V(-4.1, 3, 0), V(-6, 3, 0)),  # 0
    Part.LineSegment(V(-6, 3, 0), V(-6, 0, 0)),  # 1
    Part.ArcOfCircle(Part.Circle(V(-3, 0, 0), V(0, 0, 1), 3), math.radians(180), math.radians(360)),  # 2
    Part.LineSegment(V(0, 0, 0), V(0, 3, 0)),  # 3
    Part.LineSegment(V(0, 3, 0), V(-1.9, 3, 0)),  # 4
    Part.LineSegment(V(-1.9, 3, 0), V(-1.9, 0, 0)),  # 5
    Part.ArcOfCircle(Part.Circle(V(-3, 0, 0), V(0, 0, 1), 1.1), math.radians(180), math.radians(360)),  # 6
    Part.LineSegment(V(-4.1, 0, 0), V(-4.1, 3, 0)),  # 7
], False)
sketch7.addConstraint([
    Sketcher.Constraint("Coincident", 0, 2, 1, 1),
    Sketcher.Constraint("Tangent", 1, 2, 2, 1),
    Sketcher.Constraint("Tangent", 2, 2, 3, 1),
    Sketcher.Constraint("Coincident", 3, 2, 4, 1),
    Sketcher.Constraint("Coincident", 4, 2, 5, 1),
    Sketcher.Constraint("Tangent", 5, 2, 6, 2),
    Sketcher.Constraint("Tangent", 6, 1, 7, 1),
    Sketcher.Constraint("Coincident", 7, 2, 0, 1),
    Sketcher.Constraint("Horizontal", 0),
    Sketcher.Constraint("Vertical", 1),
    Sketcher.Constraint("Vertical", 3),
    Sketcher.Constraint("Horizontal", 4),
    Sketcher.Constraint("Vertical", 5),
    Sketcher.Constraint("Vertical", 7),
    Sketcher.Constraint("Coincident", 6, 3, 2, 3),
    Sketcher.Constraint("PointOnObject", 2, 3, -1),
    Sketcher.Constraint("Horizontal", 0, 2, 3, 2),
    Sketcher.Constraint("Radius", 6, Q("1.08 mm")),
    Sketcher.Constraint("DistanceY", 1, 2, 1, 1, Q("2.97 mm")),
    Sketcher.Constraint("Radius", 2, Q("3.0375 mm")),
    Sketcher.Constraint("DistanceX", 0, 2, -1, 1, Q("6.04 mm")),
])
pocket6 = body.newObject("PartDesign::Pocket", "Pocket005")
pocket6.Profile = sketch7
pocket6.Length = 0.05

# Sketch on XY plane
sketch8 = body.newObject("Sketcher::SketchObject", "Sketch007")
sketch8.AttachmentSupport = (doc.getObject("XY_Plane"), [""])
sketch8.MapMode = "FlatFace"
sketch8.AttachmentOffset = App.Placement(V(0, 0, 0.3), App.Rotation())
sketch8.addGeometry(Part.Circle(V(20, 0, 0), V(0, 0, 1), 1.4), False)
sketch8.addConstraint([
    Sketcher.Constraint("PointOnObject", 0, 3, -1),
    Sketcher.Constraint("Diameter", 0, Q("2.832 mm")),
    Sketcher.Constraint("DistanceX", -1, 1, 0, 3, Q("20 mm")),
])
doc.recompute()
hole = body.newObject("PartDesign::Hole", "Hole")
hole.Profile = sketch8
hole.ThreadType = "None"
hole.Diameter = 2.832
hole.DepthType = "Dimension"
hole.Depth = 0.05
hole.DrillPoint = "Flat"

# Sketch on XY plane
sketch9 = body.newObject("Sketcher::SketchObject", "Sketch008")
sketch9.AttachmentSupport = (doc.getObject("XY_Plane"), [""])
sketch9.MapMode = "FlatFace"
sketch9.AttachmentOffset = App.Placement(V(0, 0, 0.3), App.Rotation())
sketch9.addGeometry([
    Part.LineSegment(V(24.9, 6.6, 0), V(21.5, 4.8, 0)),  # 0
    Part.ArcOfCircle(Part.Circle(V(20, 0, 0), V(0, 0, 1), 5), math.radians(73), math.radians(206)),  # 1
    Part.LineSegment(V(15.5, -2.2, 0), V(18.2, -0.7, 0)),  # 2
    Part.ArcOfCircle(Part.Circle(V(20, 0, 0), V(0, 0, 1), 2), math.radians(34), math.radians(202)),  # 3
    Part.LineSegment(V(21.6, 1.1, 0), V(24.9, 2.9, 0)),  # 4
    Part.LineSegment(V(24.9, 2.9, 0), V(24.9, 6.6, 0)),  # 5
], False)
sketch9.addConstraint([
    Sketcher.Constraint("Coincident", 0, 2, 1, 1),
    Sketcher.Constraint("Coincident", 1, 2, 2, 1),
    Sketcher.Constraint("Coincident", 2, 2, 3, 2),
    Sketcher.Constraint("Coincident", 3, 1, 4, 1),
    Sketcher.Constraint("Coincident", 4, 2, 5, 1),
    Sketcher.Constraint("Coincident", 5, 2, 0, 1),
    Sketcher.Constraint("Vertical", 5),
    Sketcher.Constraint("Coincident", 3, 3, 1, 3),
    Sketcher.Constraint("PointOnObject", 1, 3, -1),
    Sketcher.Constraint("DistanceX", -1, 1, 1, 3, Q("20 mm")),
    Sketcher.Constraint("Angle", 0, Q("-152.0591 deg")),
    Sketcher.Constraint("Radius", 1, Q("4.9995 mm")),
    Sketcher.Constraint("Radius", 3, Q("1.9655 mm")),
    Sketcher.Constraint("DistanceY", 5, 1, 5, 2, Q("3.7642 mm")),
    Sketcher.Constraint("DistanceY", -1, 1, 0, 2, Q("4.783 mm")),
    Sketcher.Constraint("DistanceY", -1, 1, 4, 2, Q("2.869 mm")),
    Sketcher.Constraint("DistanceX", 2, 2, 0, 2, Q("3.276 mm")),
    Sketcher.Constraint("DistanceY", 3, 1, 0, 2, Q("3.678 mm")),
    Sketcher.Constraint("Distance", 2, Q("3.0397 mm")),
])
pocket7 = body.newObject("PartDesign::Pocket", "Pocket006")
pocket7.Profile = sketch9
pocket7.Length = 0.05

# Sketch on XY plane
sketch10 = body.newObject("Sketcher::SketchObject", "Sketch009")
sketch10.AttachmentSupport = (doc.getObject("XY_Plane"), [""])
sketch10.MapMode = "FlatFace"
sketch10.AttachmentOffset = App.Placement(V(0, 0, 0.3), App.Rotation())
sketch10.addGeometry([
    Part.LineSegment(V(18.4, -1.1, 0), V(15.1, -2.9, 0)),  # 0
    Part.LineSegment(V(15.1, -2.9, 0), V(15.1, -6.6, 0)),  # 1
    Part.LineSegment(V(15.1, -6.6, 0), V(18.6, -4.8, 0)),  # 2
    Part.ArcOfCircle(Part.Circle(V(20, 0, 0), V(0, 0, 1), 5), math.radians(-107), math.radians(26)),  # 3
    Part.LineSegment(V(24.5, 2.2, 0), V(21.8, 0.7, 0)),  # 4
    Part.ArcOfCircle(Part.Circle(V(20, 0, 0), V(0, 0, 1), 2), math.radians(-145), math.radians(22)),  # 5
], False)
sketch10.addConstraint([
    Sketcher.Constraint("Coincident", 0, 2, 1, 1),
    Sketcher.Constraint("Coincident", 1, 2, 2, 1),
    Sketcher.Constraint("Coincident", 2, 2, 3, 1),
    Sketcher.Constraint("Coincident", 3, 2, 4, 1),
    Sketcher.Constraint("Coincident", 4, 2, 5, 2),
    Sketcher.Constraint("Coincident", 5, 1, 0, 1),
    Sketcher.Constraint("Vertical", 1),
    Sketcher.Constraint("Coincident", 5, 3, 3, 3),
    Sketcher.Constraint("PointOnObject", 3, 3, -1),
    Sketcher.Constraint("DistanceX", -1, 1, 3, 3, Q("20 mm")),
    Sketcher.Constraint("Radius", 5, Q("1.958 mm")),
    Sketcher.Constraint("Radius", 3, Q("4.9973 mm")),
    Sketcher.Constraint("DistanceY", 1, 2, 1, 1, Q("3.7642 mm")),
    Sketcher.Constraint("DistanceY", 0, 2, -1, 1, Q("2.857 mm")),
    Sketcher.Constraint("DistanceX", -1, 1, 3, 2, Q("24.498 mm")),
    Sketcher.Constraint("DistanceY", -1, 1, 4, 2, Q("0.733 mm")),
    Sketcher.Constraint("DistanceY", 5, 1, -1, 1, Q("1.109 mm")),
    Sketcher.Constraint("DistanceY", 1, 2, 2, 2, Q("1.835 mm")),
    Sketcher.Constraint("DistanceX", 0, 2, 5, 1, Q("3.313 mm")),
])
pocket8 = body.newObject("PartDesign::Pocket", "Pocket007")
pocket8.Profile = sketch10
pocket8.Length = 0.05

doc.recompute()
